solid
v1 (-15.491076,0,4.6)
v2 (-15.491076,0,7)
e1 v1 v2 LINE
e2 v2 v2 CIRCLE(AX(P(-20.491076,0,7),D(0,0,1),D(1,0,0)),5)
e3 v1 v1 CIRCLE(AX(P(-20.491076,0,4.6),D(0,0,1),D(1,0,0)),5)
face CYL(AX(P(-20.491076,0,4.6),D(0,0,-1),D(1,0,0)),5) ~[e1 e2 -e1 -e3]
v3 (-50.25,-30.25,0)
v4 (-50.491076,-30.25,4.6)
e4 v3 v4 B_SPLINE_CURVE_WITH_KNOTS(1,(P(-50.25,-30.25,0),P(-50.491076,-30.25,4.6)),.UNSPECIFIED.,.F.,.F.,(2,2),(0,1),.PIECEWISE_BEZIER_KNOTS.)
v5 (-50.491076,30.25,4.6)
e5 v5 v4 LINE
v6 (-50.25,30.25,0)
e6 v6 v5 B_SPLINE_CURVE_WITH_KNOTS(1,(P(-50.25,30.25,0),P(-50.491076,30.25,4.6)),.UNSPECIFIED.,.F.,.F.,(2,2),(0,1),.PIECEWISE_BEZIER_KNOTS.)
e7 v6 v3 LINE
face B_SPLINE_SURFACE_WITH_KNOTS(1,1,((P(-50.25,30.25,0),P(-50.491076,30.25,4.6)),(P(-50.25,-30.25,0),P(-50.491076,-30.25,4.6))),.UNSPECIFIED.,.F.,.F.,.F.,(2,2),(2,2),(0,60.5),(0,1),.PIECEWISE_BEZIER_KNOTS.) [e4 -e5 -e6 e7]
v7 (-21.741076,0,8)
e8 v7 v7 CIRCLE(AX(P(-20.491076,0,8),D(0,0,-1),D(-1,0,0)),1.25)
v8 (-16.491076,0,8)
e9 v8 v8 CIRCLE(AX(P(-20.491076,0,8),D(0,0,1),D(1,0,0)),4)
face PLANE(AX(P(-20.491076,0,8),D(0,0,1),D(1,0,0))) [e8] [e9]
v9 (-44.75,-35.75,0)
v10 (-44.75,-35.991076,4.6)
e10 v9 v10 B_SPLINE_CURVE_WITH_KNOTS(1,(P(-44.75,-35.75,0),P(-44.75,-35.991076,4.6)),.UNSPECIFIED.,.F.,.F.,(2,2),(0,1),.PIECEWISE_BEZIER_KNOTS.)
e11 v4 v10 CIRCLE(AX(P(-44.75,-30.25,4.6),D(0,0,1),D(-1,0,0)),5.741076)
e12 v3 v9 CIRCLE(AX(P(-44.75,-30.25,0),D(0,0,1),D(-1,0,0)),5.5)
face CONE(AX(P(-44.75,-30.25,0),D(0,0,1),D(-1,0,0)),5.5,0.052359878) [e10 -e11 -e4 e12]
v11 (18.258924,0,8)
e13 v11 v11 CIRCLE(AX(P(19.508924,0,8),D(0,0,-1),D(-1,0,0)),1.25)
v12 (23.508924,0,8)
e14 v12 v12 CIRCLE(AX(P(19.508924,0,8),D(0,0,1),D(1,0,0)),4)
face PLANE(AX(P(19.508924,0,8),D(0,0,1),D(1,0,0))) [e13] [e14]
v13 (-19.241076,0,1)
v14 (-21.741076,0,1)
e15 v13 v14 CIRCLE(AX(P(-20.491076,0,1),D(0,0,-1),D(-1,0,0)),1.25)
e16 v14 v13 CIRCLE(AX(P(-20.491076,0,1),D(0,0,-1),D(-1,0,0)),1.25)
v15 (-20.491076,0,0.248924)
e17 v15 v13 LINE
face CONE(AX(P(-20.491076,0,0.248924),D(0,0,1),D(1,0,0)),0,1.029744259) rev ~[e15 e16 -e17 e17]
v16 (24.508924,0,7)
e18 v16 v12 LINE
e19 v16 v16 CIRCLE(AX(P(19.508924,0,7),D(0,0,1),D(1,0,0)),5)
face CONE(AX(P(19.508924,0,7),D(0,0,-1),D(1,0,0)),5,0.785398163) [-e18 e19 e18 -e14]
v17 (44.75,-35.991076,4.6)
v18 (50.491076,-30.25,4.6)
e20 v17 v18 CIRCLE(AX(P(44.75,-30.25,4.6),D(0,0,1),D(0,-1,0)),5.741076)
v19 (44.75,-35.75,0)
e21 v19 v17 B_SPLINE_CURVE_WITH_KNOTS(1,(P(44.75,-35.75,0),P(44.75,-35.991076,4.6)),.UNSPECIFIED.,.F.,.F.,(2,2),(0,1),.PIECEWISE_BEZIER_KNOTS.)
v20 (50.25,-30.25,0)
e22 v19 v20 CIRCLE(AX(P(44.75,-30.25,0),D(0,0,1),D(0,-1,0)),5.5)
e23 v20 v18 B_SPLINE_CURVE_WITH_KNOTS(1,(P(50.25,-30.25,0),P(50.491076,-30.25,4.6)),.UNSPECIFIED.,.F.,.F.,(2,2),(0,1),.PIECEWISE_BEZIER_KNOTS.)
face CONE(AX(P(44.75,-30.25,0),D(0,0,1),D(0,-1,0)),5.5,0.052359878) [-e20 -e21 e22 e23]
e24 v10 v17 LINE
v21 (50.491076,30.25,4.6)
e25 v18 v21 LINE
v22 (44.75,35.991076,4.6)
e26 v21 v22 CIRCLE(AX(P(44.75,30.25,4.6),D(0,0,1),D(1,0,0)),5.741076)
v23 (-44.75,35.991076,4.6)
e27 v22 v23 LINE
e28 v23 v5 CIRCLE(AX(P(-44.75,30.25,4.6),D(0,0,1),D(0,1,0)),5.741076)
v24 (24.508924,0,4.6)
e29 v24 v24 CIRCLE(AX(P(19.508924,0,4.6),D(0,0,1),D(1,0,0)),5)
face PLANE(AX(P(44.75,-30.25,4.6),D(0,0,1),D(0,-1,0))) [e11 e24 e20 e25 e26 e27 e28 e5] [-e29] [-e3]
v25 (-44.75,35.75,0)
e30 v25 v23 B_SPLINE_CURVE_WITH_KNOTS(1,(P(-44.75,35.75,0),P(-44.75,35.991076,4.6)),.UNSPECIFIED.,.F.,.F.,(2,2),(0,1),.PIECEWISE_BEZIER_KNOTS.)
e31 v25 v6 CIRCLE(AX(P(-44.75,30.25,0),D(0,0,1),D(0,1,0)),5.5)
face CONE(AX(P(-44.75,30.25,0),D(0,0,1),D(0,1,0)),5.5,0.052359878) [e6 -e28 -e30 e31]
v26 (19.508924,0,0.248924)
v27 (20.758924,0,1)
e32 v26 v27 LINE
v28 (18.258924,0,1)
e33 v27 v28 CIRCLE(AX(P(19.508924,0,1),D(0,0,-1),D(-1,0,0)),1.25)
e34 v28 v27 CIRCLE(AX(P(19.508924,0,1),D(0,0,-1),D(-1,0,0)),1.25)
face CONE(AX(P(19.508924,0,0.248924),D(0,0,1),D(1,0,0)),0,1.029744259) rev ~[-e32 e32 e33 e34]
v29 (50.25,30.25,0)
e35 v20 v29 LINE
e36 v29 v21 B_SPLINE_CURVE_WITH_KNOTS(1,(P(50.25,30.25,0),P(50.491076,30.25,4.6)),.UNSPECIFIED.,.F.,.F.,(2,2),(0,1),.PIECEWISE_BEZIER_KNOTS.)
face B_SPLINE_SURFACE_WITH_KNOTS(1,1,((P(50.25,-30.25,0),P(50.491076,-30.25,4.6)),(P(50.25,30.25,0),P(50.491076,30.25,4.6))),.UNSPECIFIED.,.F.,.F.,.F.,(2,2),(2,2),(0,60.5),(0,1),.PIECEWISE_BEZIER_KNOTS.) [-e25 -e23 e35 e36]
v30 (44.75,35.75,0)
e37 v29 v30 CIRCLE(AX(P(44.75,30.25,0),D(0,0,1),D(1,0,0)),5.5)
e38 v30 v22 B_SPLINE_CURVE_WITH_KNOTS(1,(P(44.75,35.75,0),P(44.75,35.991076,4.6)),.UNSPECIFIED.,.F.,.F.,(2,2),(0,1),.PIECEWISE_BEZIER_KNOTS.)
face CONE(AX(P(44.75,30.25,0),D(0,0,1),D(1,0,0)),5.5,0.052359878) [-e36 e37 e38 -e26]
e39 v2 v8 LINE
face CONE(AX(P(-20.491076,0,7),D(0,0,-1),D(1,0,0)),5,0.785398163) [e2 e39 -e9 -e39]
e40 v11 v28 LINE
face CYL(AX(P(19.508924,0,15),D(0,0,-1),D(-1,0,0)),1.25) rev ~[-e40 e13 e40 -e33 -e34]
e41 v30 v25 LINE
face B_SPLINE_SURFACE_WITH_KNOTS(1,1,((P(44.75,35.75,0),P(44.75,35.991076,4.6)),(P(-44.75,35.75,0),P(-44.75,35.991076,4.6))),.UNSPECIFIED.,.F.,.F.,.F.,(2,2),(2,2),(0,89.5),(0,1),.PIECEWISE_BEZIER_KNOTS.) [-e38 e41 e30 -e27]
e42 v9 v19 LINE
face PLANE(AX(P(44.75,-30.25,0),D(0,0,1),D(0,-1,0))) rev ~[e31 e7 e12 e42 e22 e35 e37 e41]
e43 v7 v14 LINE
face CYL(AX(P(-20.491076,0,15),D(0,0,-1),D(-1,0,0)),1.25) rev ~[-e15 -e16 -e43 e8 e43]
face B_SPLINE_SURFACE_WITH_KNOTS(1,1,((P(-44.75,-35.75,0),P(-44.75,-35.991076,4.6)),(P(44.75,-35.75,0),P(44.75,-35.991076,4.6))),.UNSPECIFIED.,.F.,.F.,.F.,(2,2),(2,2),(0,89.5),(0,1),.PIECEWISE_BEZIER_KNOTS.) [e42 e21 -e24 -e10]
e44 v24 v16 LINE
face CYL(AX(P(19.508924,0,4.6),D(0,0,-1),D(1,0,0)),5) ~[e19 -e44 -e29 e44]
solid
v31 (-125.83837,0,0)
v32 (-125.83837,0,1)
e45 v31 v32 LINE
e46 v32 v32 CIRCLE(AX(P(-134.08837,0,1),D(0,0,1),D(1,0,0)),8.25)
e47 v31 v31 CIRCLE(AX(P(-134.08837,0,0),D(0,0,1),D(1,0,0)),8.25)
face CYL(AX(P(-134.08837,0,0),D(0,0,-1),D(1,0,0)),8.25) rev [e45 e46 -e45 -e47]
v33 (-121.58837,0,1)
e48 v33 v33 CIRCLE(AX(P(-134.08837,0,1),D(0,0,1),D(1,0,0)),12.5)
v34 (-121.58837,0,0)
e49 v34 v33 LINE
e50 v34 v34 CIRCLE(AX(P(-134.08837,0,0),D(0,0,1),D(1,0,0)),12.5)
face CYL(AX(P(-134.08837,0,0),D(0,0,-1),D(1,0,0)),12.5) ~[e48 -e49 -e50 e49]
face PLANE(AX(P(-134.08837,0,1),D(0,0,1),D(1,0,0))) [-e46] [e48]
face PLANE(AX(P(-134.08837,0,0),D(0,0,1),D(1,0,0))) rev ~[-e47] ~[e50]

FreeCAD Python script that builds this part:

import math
import FreeCAD as App
import Part
import Sketcher
Q = App.Units.Quantity


def edges_at(feature, points):
    """Names of the edges that pass closest to the given points."""
    edges = feature.Shape.Edges
    near = lambda p: min(range(len(edges)), key=lambda i: edges[i].distToShape(Part.Vertex(*p))[0])
    return sorted({f"Edge{near(p) + 1}" for p in points})

doc = App.newDocument("Part")
body = doc.addObject("PartDesign::Body", "Body")

sketch1 = body.newObject("Sketcher::SketchObject", "Sketch")
sketch1.AttachmentSupport = (doc.getObject("XY_Plane"), [""])
sketch1.MapMode = "FlatFace"
sketch1.addGeometry([
    Part.LineSegment(App.Vector(-45, -36, 0), App.Vector(45, -36, 0)),
    Part.ArcOfCircle(Part.Circle(App.Vector(45, -30, 0), App.Vector(0, 0, 1), 6), math.radians(-90), math.radians(0)),
    Part.LineSegment(App.Vector(50, -30, 0), App.Vector(50, 30, 0)),
    Part.ArcOfCircle(Part.Circle(App.Vector(45, 30, 0), App.Vector(0, 0, 1), 6), math.radians(0), math.radians(90)),
    Part.LineSegment(App.Vector(45, 36, 0), App.Vector(-45, 36, 0)),
    Part.ArcOfCircle(Part.Circle(App.Vector(-45, 30, 0), App.Vector(0, 0, 1), 6), math.radians(90), math.radians(180)),
    Part.LineSegment(App.Vector(-50, 30, 0), App.Vector(-50, -30, 0)),
    Part.ArcOfCircle(Part.Circle(App.Vector(-45, -30, 0), App.Vector(0, 0, 1), 6), math.radians(180), math.radians(270)),
], False)
sketch1.addConstraint([
    Sketcher.Constraint("Tangent", 0, 2, 1, 1),
    Sketcher.Constraint("Tangent", 1, 2, 2, 1),
    Sketcher.Constraint("Tangent", 2, 2, 3, 1),
    Sketcher.Constraint("Tangent", 3, 2, 4, 1),
    Sketcher.Constraint("Tangent", 4, 2, 5, 1),
    Sketcher.Constraint("Tangent", 5, 2, 6, 1),
    Sketcher.Constraint("Tangent", 6, 2, 7, 1),
    Sketcher.Constraint("Tangent", 7, 2, 0, 1),
    Sketcher.Constraint("Horizontal", 0),
    Sketcher.Constraint("Vertical", 2),
    Sketcher.Constraint("Horizontal", 4),
    Sketcher.Constraint("Vertical", 6),
    Sketcher.Constraint("Equal", 1, 3),
    Sketcher.Constraint("Equal", 3, 5),
    Sketcher.Constraint("Equal", 5, 7),
    Sketcher.Constraint("Symmetric", 1, 3, 5, 3, -1, 1),
    Sketcher.Constraint("Radius", 1, Q("5.5 mm")),
    Sketcher.Constraint("DistanceX", 0, 1, 0, 2, Q("89.5 mm")),
    Sketcher.Constraint("DistanceY", 2, 1, 2, 2, Q("60.5 mm")),
])
pad1 = body.newObject("PartDesign::Pad", "Pad")
pad1.Profile = sketch1
pad1.Length = 4.6
pad1.TaperAngle = 3

sketch2 = body.newObject("Sketcher::SketchObject", "Sketch001")
sketch2.AttachmentSupport = (doc.getObject("XY_Plane"), [""])
sketch2.MapMode = "FlatFace"
sketch2.AttachmentOffset = App.Placement(App.Vector(0, 0, 4.6), App.Rotation())
sketch2.addGeometry([
    Part.Circle(App.Vector(20, 0, 0), App.Vector(0, 0, 1), 5),
    Part.Circle(App.Vector(-20, 0, 0), App.Vector(0, 0, 1), 5),
], False)
sketch2.addConstraint([
    Sketcher.Constraint("Equal", 0, 1),
    Sketcher.Constraint("PointOnObject", 0, 3, -1),
    Sketcher.Constraint("PointOnObject", 1, 3, -1),
    Sketcher.Constraint("Diameter", 0, Q("10 mm")),
    Sketcher.Constraint("DistanceX", 1, 3, 0, 3, Q("40 mm")),
    Sketcher.Constraint("DistanceX", -1, 1, 0, 3, Q("19.508924 mm")),
])
pad2 = body.newObject("PartDesign::Pad", "Pad001")
pad2.Profile = sketch2
pad2.Length = 3.4
doc.recompute()

chamfer = body.newObject("PartDesign::Chamfer", "Chamfer")
chamfer.Base = (pad2, edges_at(pad2, [(-25.491, 0, 8), (14.509, 0, 8)]))
chamfer.Size = 1

sketch3 = body.newObject("Sketcher::SketchObject", "Sketch002")
sketch3.AttachmentSupport = (doc.getObject("XY_Plane"), [""])
sketch3.MapMode = "FlatFace"
sketch3.AttachmentOffset = App.Placement(App.Vector(0, 0, 8), App.Rotation())
sketch3.addGeometry([
    Part.Circle(App.Vector(-20.5, 0, 0), App.Vector(0, 0, 1), 1.2),
    Part.Circle(App.Vector(19.5, 0, 0), App.Vector(0, 0, 1), 1.2),
], False)
sketch3.addConstraint([
    Sketcher.Constraint("Equal", 0, 1),
    Sketcher.Constraint("PointOnObject", 0, 3, -1),
    Sketcher.Constraint("PointOnObject", 1, 3, -1),
    Sketcher.Constraint("Diameter", 0, Q("2.5 mm")),
    Sketcher.Constraint("DistanceX", 0, 3, 1, 3, Q("40 mm")),
    Sketcher.Constraint("DistanceX", 0, 3, -1, 1, Q("20.491076 mm")),
])
doc.recompute()
hole = body.newObject("PartDesign::Hole", "Hole")
hole.Profile = sketch3
hole.ThreadType = "None"
hole.Diameter = 2.5
hole.DepthType = "Dimension"
hole.Depth = 7
hole.DrillPoint = "Angled"
hole.DrillPointAngle = 118
body2 = doc.addObject("PartDesign::Body", "Body001")

sketch4 = body2.newObject("Sketcher::SketchObject", "Sketch003")
sketch4.AttachmentSupport = (doc.getObject("XY_Plane001"), [""])
sketch4.MapMode = "FlatFace"
sketch4.addGeometry([
    Part.Circle(App.Vector(-134, 0, 0), App.Vector(0, 0, 1), 12),
    Part.Circle(App.Vector(-134, 0, 0), App.Vector(0, 0, 1), 8),
], False)
sketch4.addConstraint([
    Sketcher.Constraint("Coincident", 1, 3, 0, 3),
    Sketcher.Constraint("PointOnObject", 0, 3, -1),
    Sketcher.Constraint("Diameter", 0, Q("25 mm")),
    Sketcher.Constraint("Diameter", 1, Q("16.5 mm")),
    Sketcher.Constraint("DistanceX", 0, 3, -1, 1, Q("134.08837 mm")),
])
pad3 = body2.newObject("PartDesign::Pad", "Pad002")
pad3.Profile = sketch4
pad3.Length = 1

doc.recompute()
